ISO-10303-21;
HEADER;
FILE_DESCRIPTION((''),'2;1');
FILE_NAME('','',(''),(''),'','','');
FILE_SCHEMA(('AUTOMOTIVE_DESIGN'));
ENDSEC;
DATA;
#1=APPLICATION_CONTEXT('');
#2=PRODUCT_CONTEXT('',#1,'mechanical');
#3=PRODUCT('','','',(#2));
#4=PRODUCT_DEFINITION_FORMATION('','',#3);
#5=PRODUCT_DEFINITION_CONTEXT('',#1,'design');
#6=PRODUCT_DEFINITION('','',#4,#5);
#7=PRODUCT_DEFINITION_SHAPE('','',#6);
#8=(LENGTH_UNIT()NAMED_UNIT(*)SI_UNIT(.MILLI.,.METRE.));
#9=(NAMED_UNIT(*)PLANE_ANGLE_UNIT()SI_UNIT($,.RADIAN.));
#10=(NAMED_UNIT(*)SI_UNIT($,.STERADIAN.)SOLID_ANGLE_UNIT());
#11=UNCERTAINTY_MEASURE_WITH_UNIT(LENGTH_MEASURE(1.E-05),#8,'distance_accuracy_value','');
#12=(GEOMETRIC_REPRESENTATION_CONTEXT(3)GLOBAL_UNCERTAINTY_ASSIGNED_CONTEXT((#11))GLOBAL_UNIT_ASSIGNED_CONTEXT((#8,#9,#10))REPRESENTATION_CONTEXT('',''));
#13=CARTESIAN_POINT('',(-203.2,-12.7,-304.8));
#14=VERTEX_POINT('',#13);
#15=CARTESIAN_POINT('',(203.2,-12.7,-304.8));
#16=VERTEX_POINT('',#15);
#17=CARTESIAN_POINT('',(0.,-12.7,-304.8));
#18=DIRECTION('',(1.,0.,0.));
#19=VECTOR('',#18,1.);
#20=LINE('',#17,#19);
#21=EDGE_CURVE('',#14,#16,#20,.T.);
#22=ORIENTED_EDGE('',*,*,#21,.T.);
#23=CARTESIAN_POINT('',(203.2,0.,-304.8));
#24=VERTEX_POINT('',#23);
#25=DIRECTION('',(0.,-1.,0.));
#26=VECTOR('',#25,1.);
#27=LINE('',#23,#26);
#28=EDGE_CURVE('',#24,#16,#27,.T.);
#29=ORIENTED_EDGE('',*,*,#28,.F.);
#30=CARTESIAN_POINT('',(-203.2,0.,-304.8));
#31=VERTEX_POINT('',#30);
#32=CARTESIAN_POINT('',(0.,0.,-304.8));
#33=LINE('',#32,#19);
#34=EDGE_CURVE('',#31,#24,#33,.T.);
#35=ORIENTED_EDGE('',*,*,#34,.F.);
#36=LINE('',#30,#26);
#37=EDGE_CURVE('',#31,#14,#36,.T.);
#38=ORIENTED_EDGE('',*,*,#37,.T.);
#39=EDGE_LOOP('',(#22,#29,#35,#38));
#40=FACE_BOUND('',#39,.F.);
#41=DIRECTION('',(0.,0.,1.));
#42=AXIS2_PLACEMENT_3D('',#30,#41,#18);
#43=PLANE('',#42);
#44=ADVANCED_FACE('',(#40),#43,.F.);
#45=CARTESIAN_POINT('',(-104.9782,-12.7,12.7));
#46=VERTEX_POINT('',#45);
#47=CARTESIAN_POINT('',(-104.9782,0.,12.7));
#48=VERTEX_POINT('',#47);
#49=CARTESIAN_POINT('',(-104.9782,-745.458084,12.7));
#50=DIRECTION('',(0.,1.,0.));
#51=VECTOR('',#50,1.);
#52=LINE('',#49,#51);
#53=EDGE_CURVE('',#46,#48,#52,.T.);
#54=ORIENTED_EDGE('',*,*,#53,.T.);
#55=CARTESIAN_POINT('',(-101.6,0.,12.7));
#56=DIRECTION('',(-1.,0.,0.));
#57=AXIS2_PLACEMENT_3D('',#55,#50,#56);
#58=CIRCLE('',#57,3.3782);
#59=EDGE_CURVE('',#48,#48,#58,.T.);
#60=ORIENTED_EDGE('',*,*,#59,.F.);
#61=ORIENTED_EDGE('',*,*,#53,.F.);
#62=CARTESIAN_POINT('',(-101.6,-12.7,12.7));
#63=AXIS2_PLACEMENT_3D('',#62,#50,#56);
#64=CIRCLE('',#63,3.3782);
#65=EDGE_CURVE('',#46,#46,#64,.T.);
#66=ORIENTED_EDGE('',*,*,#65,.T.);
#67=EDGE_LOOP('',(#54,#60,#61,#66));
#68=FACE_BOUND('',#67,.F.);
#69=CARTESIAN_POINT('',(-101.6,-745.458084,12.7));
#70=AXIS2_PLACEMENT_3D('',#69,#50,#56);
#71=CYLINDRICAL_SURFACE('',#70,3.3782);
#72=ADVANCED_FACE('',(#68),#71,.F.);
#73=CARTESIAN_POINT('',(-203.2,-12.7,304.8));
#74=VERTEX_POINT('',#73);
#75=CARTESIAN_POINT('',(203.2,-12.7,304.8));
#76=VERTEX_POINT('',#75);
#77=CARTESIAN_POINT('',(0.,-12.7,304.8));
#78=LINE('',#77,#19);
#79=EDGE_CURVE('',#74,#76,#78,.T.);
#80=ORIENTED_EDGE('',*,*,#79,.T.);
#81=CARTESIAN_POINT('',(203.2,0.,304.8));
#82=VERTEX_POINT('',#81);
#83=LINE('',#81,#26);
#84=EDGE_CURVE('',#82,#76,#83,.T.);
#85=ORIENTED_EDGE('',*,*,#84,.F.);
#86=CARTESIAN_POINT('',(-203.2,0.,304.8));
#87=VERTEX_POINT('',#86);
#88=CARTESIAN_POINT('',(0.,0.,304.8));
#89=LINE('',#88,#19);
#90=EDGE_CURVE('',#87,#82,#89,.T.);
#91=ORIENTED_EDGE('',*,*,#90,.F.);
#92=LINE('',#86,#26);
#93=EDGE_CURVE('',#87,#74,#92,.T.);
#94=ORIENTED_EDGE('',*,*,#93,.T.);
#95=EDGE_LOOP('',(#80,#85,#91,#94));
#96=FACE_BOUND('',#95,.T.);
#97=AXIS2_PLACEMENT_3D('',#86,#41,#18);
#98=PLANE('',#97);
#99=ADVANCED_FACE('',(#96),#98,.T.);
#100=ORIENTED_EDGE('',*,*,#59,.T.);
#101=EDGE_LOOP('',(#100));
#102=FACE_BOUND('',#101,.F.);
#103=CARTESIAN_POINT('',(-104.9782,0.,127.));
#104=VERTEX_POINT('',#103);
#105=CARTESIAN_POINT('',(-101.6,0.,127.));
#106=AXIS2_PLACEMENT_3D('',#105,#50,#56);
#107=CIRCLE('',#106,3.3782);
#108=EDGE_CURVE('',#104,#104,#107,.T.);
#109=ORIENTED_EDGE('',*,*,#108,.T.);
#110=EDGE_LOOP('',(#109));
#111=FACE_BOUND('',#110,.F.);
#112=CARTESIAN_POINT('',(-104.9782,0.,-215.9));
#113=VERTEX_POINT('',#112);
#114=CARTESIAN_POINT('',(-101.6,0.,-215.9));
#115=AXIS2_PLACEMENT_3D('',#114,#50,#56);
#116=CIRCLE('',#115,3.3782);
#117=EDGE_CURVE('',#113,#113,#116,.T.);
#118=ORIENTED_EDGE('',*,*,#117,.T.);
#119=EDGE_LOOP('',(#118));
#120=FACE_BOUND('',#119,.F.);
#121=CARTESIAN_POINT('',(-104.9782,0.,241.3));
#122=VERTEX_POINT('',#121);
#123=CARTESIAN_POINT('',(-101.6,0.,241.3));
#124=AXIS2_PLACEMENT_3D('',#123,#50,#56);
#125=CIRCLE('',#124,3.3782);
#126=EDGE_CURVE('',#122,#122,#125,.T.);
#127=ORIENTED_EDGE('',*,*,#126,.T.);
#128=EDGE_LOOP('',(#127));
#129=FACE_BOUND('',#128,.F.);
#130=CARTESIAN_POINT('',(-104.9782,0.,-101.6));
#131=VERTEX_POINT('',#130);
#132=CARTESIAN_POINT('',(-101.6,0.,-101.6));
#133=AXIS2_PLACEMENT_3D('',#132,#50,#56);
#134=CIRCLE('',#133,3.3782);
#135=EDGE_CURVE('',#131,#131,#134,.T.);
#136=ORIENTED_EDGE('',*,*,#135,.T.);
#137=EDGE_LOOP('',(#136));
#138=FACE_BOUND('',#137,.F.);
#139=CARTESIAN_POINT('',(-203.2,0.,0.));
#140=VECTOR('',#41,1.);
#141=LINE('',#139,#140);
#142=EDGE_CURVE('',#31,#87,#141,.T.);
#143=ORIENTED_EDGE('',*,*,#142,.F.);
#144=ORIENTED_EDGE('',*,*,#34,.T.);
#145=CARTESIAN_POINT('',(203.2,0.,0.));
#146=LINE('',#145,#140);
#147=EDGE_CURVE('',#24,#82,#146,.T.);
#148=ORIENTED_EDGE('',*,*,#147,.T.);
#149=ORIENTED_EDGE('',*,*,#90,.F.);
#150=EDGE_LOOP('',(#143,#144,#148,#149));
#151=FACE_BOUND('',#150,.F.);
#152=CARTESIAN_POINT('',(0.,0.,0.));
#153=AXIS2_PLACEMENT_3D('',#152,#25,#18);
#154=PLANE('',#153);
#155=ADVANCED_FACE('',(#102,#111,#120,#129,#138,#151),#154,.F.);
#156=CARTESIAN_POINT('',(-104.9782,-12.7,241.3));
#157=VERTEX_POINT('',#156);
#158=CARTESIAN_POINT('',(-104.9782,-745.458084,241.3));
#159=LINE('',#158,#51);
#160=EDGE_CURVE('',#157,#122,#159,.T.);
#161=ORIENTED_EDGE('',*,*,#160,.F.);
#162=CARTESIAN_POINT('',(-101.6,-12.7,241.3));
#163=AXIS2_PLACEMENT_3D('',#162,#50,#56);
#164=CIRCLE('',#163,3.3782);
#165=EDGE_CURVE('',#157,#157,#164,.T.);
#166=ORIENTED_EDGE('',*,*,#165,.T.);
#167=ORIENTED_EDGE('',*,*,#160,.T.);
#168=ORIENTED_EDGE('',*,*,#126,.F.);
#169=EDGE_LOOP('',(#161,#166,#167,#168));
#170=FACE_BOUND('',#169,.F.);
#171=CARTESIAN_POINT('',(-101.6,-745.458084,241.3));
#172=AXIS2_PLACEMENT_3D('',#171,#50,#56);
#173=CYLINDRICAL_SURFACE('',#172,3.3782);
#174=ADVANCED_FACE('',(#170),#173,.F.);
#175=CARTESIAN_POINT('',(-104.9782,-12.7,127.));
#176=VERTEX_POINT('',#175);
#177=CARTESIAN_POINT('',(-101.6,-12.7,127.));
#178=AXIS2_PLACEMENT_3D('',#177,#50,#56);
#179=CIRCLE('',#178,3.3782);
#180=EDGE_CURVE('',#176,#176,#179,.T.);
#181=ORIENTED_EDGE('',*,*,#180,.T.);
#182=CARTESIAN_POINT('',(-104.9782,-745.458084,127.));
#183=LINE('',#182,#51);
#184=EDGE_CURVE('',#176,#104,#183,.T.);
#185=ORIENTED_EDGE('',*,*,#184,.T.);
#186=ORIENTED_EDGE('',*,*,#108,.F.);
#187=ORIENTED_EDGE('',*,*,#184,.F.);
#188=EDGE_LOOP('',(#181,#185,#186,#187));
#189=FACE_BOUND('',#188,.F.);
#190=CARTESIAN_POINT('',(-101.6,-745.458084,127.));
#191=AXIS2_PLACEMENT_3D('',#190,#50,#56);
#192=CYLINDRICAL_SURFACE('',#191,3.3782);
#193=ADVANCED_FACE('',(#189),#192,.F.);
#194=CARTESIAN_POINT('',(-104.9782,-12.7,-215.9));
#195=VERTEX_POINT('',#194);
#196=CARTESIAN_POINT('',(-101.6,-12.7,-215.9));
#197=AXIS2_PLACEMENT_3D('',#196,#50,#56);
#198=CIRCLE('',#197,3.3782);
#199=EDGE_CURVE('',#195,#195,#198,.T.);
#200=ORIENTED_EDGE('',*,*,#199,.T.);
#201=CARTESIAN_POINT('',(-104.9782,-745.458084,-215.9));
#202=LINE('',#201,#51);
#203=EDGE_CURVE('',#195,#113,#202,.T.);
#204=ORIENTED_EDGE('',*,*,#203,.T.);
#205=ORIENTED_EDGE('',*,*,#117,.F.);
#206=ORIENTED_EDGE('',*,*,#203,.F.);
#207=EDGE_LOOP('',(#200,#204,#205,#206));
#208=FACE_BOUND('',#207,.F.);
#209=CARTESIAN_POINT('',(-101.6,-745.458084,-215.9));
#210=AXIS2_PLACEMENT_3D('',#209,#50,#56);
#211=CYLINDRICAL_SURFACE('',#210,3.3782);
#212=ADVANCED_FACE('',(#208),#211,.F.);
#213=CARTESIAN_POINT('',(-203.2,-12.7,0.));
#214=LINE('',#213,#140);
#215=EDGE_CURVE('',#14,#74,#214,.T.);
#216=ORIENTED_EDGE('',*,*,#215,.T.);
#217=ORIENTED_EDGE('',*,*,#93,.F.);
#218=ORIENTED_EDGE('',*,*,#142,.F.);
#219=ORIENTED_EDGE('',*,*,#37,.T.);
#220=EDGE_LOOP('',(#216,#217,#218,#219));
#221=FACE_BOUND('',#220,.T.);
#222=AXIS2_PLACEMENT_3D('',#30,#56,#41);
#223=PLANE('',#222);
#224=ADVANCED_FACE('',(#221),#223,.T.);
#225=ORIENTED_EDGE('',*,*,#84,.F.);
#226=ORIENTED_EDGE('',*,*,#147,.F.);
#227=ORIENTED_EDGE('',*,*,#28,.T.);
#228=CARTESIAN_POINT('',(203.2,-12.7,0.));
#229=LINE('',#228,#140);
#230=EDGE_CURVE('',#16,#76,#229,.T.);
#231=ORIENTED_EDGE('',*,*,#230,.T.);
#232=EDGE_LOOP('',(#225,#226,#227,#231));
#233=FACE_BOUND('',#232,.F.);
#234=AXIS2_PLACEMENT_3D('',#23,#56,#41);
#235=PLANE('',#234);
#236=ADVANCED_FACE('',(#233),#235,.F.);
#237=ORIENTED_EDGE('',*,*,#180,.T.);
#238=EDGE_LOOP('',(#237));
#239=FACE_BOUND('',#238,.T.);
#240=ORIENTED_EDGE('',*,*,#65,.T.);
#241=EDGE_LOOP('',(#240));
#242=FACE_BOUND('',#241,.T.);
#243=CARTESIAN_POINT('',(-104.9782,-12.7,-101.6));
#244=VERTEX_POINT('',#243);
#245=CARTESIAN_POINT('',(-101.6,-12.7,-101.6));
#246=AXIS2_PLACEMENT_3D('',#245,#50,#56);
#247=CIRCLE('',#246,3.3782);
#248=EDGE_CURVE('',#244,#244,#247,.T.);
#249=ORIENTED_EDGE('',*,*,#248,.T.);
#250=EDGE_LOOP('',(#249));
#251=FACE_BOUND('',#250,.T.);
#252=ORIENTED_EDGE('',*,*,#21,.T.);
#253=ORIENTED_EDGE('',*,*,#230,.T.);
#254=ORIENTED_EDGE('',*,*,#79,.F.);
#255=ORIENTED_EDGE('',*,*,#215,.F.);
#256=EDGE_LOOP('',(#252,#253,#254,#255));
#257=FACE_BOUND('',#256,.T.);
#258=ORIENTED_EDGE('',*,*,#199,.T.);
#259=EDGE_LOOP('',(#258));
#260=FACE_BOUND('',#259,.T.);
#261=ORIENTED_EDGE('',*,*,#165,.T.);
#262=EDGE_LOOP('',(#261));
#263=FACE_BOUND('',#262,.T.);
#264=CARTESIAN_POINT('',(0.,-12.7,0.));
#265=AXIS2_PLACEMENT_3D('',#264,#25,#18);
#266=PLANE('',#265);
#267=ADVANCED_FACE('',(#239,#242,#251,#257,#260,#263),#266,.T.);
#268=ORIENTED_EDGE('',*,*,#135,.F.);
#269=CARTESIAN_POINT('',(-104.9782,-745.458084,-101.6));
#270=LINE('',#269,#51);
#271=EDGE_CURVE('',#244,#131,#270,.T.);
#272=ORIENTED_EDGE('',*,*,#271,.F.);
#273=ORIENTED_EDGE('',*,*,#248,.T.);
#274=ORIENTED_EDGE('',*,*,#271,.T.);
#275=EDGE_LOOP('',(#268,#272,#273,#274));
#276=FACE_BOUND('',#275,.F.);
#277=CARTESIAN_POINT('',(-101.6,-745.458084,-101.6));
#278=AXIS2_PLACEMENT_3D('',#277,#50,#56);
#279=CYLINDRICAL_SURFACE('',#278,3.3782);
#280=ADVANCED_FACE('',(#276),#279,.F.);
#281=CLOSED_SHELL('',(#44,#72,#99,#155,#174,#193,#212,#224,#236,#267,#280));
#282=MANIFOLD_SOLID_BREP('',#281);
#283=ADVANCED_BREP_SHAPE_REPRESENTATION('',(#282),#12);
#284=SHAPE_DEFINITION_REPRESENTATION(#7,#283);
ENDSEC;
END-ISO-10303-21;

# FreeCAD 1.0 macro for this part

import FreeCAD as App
import Part
import Sketcher

V = App.Vector
Q = App.Units.Quantity


def add_polygon(sketch, points):
    """Adds a closed chain of lines whose ends are joined by coincident constraints."""
    first, n = sketch.GeometryCount, len(points)
    for a, b in zip(points, points[1:] + points[:1]):
        sketch.addGeometry(Part.LineSegment(App.Vector(*a, 0), App.Vector(*b, 0)), False)
    for i in range(n):
        sketch.addConstraint(Sketcher.Constraint("Coincident", first + i, 2, first + (i + 1) % n, 1))

doc = App.newDocument("Part")
body = doc.addObject("PartDesign::Body", "Body")

# Sketch on XZ plane
sketch1 = doc.addObject("Sketcher::SketchObject", "Sketch")
body.addObject(sketch1)
sketch1.AttachmentSupport = (doc.XZ_Plane, [""])
sketch1.MapMode = "FlatFace"
add_polygon(sketch1, [(-203, 305), (-203, -305), (203, -305), (203, 305)])  # lines 0-3
sketch1.addConstraint([
    Sketcher.Constraint("Vertical", 0),
    Sketcher.Constraint("Horizontal", 1),
    Sketcher.Constraint("Vertical", 2),
    Sketcher.Constraint("Horizontal", 3),
    Sketcher.Constraint("Symmetric", 0, 2, 2, 2, -1, 1),
    Sketcher.Constraint("DistanceX", 1, 1, 1, 2, Q("16 in")),
    Sketcher.Constraint("DistanceY", 0, 2, 0, 1, Q("24 in")),
])
pad1 = doc.addObject("PartDesign::Pad", "Pad")
body.addObject(pad1)
pad1.Profile = sketch1
pad1.Length = Q("0.5 in")

# Sketch on XZ plane
sketch2 = doc.addObject("Sketcher::SketchObject", "Sketch001")
body.addObject(sketch2)
sketch2.AttachmentSupport = (doc.XZ_Plane, [""])
sketch2.MapMode = "FlatFace"
sketch2.AttachmentOffset = App.Placement(V(0, 0, 0.5 * 25.4), App.Rotation())
sketch2.addGeometry([
    Part.Circle(V(-101.6, 241.3, 0), V(0, 0, 1), 3.4),  # 0
    Part.Circle(V(-101.6, 127, 0), V(0, 0, 1), 3.4),  # 1
    Part.Circle(V(-101.6, 12.7, 0), V(0, 0, 1), 3.4),  # 2
    Part.Circle(V(-101.6, -101.6, 0), V(0, 0, 1), 3.4),  # 3
    Part.Circle(V(-101.6, -215.9, 0), V(0, 0, 1), 3.4),  # 4
], False)
sketch2.addConstraint([
    Sketcher.Constraint("Equal", 0, 1),
    Sketcher.Constraint("Equal", 1, 2),
    Sketcher.Constraint("Equal", 2, 3),
    Sketcher.Constraint("Equal", 3, 4),
    Sketcher.Constraint("Vertical", 0, 3, 1, 3),
    Sketcher.Constraint("Vertical", 1, 3, 2, 3),
    Sketcher.Constraint("Vertical", 2, 3, 3, 3),
    Sketcher.Constraint("Vertical", 3, 3, 4, 3),
    Sketcher.Constraint("Diameter", 0, Q("0.266 in")),
    Sketcher.Constraint("DistanceX", 0, 3, -1, 1, Q("4 in")),
    Sketcher.Constraint("DistanceY", -1, 1, 1, 3, Q("5 in")),
    Sketcher.Constraint("DistanceY", 3, 3, -1, 1, Q("4 in")),
    Sketcher.Constraint("DistanceY", 2, 3, 0, 3, Q("9 in")),
    Sketcher.Constraint("DistanceY", 4, 3, 2, 3, Q("9 in")),
    Sketcher.Constraint("DistanceY", -1, 1, 0, 3, Q("9.5 in")),
])
doc.recompute()
hole = doc.addObject("PartDesign::Hole", "Hole")
body.addObject(hole)
hole.Profile = sketch2
hole.ThreadType = "None"
hole.Diameter = Q("0.266 in")
hole.DepthType = "ThroughAll"

doc.recompute()
